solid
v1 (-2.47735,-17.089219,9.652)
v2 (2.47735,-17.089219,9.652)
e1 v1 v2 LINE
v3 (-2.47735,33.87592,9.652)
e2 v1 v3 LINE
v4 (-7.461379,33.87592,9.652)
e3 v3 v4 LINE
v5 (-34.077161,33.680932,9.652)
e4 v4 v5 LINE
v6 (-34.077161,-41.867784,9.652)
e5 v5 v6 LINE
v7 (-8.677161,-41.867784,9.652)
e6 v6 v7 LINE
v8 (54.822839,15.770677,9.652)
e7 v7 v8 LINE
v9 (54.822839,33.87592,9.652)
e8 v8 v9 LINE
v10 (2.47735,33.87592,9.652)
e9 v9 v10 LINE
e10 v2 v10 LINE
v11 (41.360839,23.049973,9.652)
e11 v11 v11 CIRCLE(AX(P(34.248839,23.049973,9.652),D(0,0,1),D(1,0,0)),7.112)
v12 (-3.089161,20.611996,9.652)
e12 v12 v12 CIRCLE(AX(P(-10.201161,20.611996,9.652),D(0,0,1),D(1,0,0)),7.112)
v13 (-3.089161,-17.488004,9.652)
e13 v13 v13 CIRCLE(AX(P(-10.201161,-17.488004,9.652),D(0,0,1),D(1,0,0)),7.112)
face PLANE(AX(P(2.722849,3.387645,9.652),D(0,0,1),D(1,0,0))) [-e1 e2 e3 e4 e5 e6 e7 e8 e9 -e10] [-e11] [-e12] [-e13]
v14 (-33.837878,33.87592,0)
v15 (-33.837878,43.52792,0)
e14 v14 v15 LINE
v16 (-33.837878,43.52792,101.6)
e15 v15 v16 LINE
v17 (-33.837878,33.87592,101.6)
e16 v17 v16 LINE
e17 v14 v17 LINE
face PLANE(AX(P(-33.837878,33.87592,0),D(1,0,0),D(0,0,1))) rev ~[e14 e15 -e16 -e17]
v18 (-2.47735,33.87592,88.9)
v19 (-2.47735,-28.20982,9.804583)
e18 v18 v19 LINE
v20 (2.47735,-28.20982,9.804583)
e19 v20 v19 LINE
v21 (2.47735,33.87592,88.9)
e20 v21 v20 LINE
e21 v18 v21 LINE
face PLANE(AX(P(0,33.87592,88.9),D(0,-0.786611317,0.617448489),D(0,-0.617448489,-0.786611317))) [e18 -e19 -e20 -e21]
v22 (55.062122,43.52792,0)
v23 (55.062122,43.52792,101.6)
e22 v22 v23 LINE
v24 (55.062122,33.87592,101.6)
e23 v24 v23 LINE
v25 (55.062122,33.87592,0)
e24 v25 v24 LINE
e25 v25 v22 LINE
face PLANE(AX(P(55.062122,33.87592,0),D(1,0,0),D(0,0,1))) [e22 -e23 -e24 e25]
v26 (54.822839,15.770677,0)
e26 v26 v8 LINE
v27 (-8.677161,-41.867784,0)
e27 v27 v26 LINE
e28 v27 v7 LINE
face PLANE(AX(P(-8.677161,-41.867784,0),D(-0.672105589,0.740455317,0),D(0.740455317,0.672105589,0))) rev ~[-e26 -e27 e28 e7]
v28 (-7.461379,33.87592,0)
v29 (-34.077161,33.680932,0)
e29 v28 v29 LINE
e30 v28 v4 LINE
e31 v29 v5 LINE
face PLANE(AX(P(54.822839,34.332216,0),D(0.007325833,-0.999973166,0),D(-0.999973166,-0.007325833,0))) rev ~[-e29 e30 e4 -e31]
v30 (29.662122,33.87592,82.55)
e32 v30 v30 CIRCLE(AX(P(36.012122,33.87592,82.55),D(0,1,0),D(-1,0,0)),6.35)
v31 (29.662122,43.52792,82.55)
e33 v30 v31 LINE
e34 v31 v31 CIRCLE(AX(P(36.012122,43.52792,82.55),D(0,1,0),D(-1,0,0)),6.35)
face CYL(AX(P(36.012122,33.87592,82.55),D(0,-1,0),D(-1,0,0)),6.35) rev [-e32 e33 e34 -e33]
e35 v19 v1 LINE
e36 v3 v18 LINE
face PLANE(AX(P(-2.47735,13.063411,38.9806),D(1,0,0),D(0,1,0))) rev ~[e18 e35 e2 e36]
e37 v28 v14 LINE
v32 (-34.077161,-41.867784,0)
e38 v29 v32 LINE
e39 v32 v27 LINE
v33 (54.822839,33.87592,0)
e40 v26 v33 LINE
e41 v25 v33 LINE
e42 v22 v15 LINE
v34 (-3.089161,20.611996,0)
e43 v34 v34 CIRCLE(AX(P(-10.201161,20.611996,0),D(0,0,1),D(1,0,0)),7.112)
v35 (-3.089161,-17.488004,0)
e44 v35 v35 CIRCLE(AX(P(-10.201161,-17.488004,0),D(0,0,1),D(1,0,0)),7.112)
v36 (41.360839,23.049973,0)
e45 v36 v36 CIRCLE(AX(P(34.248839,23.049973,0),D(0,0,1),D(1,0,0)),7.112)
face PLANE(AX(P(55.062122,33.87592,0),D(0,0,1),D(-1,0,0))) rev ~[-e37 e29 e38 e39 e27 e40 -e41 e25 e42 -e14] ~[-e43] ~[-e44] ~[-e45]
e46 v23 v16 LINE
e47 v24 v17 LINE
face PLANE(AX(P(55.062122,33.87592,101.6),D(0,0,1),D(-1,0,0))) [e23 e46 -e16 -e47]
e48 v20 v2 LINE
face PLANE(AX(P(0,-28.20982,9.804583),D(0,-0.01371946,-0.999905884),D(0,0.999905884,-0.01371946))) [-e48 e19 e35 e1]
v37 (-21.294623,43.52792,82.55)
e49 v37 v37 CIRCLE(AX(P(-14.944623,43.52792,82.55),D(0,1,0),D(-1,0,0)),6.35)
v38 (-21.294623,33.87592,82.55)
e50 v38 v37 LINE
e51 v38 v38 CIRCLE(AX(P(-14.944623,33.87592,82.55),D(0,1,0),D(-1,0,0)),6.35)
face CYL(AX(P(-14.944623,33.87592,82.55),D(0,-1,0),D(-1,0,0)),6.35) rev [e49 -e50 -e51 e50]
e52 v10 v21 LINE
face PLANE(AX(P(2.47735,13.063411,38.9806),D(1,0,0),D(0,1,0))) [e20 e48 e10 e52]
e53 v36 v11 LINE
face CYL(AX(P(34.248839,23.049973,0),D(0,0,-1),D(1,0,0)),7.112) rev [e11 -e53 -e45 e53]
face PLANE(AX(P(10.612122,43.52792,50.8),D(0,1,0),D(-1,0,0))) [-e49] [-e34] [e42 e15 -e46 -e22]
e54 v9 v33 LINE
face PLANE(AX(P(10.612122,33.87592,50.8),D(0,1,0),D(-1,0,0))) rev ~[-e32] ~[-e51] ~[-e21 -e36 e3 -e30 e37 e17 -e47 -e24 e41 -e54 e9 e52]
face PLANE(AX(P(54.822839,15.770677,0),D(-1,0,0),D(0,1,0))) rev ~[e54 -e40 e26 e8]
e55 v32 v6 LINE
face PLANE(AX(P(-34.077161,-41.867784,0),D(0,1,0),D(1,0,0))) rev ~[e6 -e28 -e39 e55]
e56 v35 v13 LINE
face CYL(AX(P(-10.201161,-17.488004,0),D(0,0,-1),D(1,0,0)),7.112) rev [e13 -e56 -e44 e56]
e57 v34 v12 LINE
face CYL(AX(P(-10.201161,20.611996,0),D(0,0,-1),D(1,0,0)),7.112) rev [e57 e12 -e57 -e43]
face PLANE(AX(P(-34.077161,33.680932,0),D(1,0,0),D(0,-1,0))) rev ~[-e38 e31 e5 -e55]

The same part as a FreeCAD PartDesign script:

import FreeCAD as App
import Part
import Sketcher
Q = App.Units.Quantity


def add_polygon(sketch, points):
    """Adds a closed chain of lines whose ends are joined by coincident constraints."""
    first, n = sketch.GeometryCount, len(points)
    for a, b in zip(points, points[1:] + points[:1]):
        sketch.addGeometry(Part.LineSegment(App.Vector(*a, 0), App.Vector(*b, 0)), False)
    for i in range(n):
        sketch.addConstraint(Sketcher.Constraint("Coincident", first + i, 2, first + (i + 1) % n, 1))

doc = App.newDocument("Part")
params = doc.addObject("Spreadsheet::Sheet", "Params")
for row, (alias, value) in enumerate([
    ("sketch1_diameter", "0.56 in"),
    ("sketch1_width", "1 in"),
    ("pad1_length", "0.38 in"),
    ("pad2_length", "4.9547 mm"),
    ("sketch3_diameter", "0.5 in"),
    ("sketch3_height", "4 in"),
    ("sketch3_width", "3.5 in"),
    ("pad3_length", "0.38 in"),
], start=1):
    params.set(f"A{row}", alias)
    params.set(f"B{row}", "=" + value)
    params.setAlias(f"B{row}", alias)

body = doc.addObject("PartDesign::Body", "Body")

sketch1 = doc.addObject("Sketcher::SketchObject", "Sketch")
body.addObject(sketch1)
sketch1.AttachmentSupport = (doc.XY_Plane, [""])
sketch1.MapMode = "FlatFace"
add_polygon(sketch1, [(55, 34), (-34, 34), (-34, -42), (-9, -42), (55, 16)])
sketch1.addGeometry(Part.Circle(App.Vector(-10, -17, 0), App.Vector(0, 0, 1), 7), False)
sketch1.addGeometry(Part.Circle(App.Vector(-10, 21, 0), App.Vector(0, 0, 1), 7), False)
sketch1.addGeometry(Part.Circle(App.Vector(34, 23, 0), App.Vector(0, 0, 1), 7), False)
sketch1.addConstraint(Sketcher.Constraint("Vertical", 1))
sketch1.addConstraint(Sketcher.Constraint("Horizontal", 2))
sketch1.addConstraint(Sketcher.Constraint("Vertical", 4))
sketch1.addConstraint(Sketcher.Constraint("Equal", 5, 6))
sketch1.addConstraint(Sketcher.Constraint("Equal", 6, 7))
sketch1.addConstraint(Sketcher.Constraint("Vertical", 5, 3, 6, 3))
sketch1.addConstraint(Sketcher.Constraint("Diameter", 5, Q("0.56 in")))
sketch1.addConstraint(Sketcher.Constraint("DistanceX", 2, 1, 2, 2, Q("1 in")))
sketch1.addConstraint(Sketcher.Constraint("DistanceY", 5, 3, 6, 3, Q("1.5 in")))
sketch1.addConstraint(Sketcher.Constraint("DistanceX", 2, 2, 3, 2, Q("2.5 in")))
sketch1.addConstraint(Sketcher.Constraint("DistanceX", 6, 3, 7, 3, Q("1.75 in")))
sketch1.addConstraint(Sketcher.Constraint("DistanceX", 0, 2, 6, 3, Q("0.94 in")))
sketch1.addConstraint(Sketcher.Constraint("DistanceY", 4, 1, 4, 2, Q("18.561539 mm")))
sketch1.addConstraint(Sketcher.Constraint("DistanceY", 1, 2, 1, 1, Q("75.548716 mm")))
sketch1.addConstraint(Sketcher.Constraint("DistanceX", 5, 3, -1, 1, Q("10.201161 mm")))
sketch1.addConstraint(Sketcher.Constraint("DistanceY", 7, 3, 0, 2, Q("10.630959 mm")))
sketch1.addConstraint(Sketcher.Constraint("DistanceY", 1, 2, 5, 3, Q("24.37978 mm")))
sketch1.addConstraint(Sketcher.Constraint("DistanceY", 3, 2, 6, 3, Q("4.841319 mm")))
sketch1.addConstraint(Sketcher.Constraint("DistanceY", 5, 3, -1, 1, Q("17.488004 mm")))
sketch1.setExpression("Constraints[11]", "Params.sketch1_diameter")
sketch1.setExpression("Constraints[12]", "Params.sketch1_width")
pad1 = doc.addObject("PartDesign::Pad", "Pad")
body.addObject(pad1)
pad1.Profile = sketch1
pad1.setExpression("Length", "Params.pad1_length")

sketch2 = doc.addObject("Sketcher::SketchObject", "Sketch001")
body.addObject(sketch2)
sketch2.AttachmentSupport = (doc.YZ_Plane, [""])
sketch2.MapMode = "FlatFace"
add_polygon(sketch2, [(34, 9), (34, 89), (-28, 10)])
sketch2.addConstraint(Sketcher.Constraint("Vertical", 0))
sketch2.addConstraint(Sketcher.Constraint("DistanceY", -1, 1, 0, 2, Q("3.5 in")))
sketch2.addConstraint(Sketcher.Constraint("DistanceY", 0, 1, 0, 2, Q("79.94728 mm")))
sketch2.addConstraint(Sketcher.Constraint("DistanceX", -1, 1, 0, 2, Q("33.87592 mm")))
sketch2.addConstraint(Sketcher.Constraint("DistanceX", 1, 2, -1, 1, Q("28.20982 mm")))
sketch2.addConstraint(Sketcher.Constraint("Distance", 1, Q("100.552096 mm")))
pad2 = doc.addObject("PartDesign::Pad", "Pad001")
body.addObject(pad2)
pad2.Profile = sketch2
pad2.setExpression("Length", "Params.pad2_length")
pad2.Midplane = True

sketch3 = doc.addObject("Sketcher::SketchObject", "Sketch002")
body.addObject(sketch3)
sketch3.AttachmentSupport = (doc.XZ_Plane, [""])
sketch3.MapMode = "FlatFace"
sketch3.AttachmentOffset = App.Placement(App.Vector(0, 0, -33.87592), App.Rotation())
add_polygon(sketch3, [(55, 102), (55, 0), (-34, 0), (-34, 102)])
sketch3.addGeometry(Part.Circle(App.Vector(36, 83, 0), App.Vector(0, 0, 1), 6), False)
sketch3.addGeometry(Part.Circle(App.Vector(-15, 83, 0), App.Vector(0, 0, 1), 6), False)
sketch3.addConstraint(Sketcher.Constraint("Vertical", 0))
sketch3.addConstraint(Sketcher.Constraint("Horizontal", 1))
sketch3.addConstraint(Sketcher.Constraint("Vertical", 2))
sketch3.addConstraint(Sketcher.Constraint("Horizontal", 3))
sketch3.addConstraint(Sketcher.Constraint("Equal", 4, 5))
sketch3.addConstraint(Sketcher.Constraint("PointOnObject", 0, 2, -1))
sketch3.addConstraint(Sketcher.Constraint("Horizontal", 4, 3, 5, 3))
sketch3.addConstraint(Sketcher.Constraint("Diameter", 4, Q("0.5 in")))
sketch3.addConstraint(Sketcher.Constraint("DistanceY", 0, 2, 0, 1, Q("4 in")))
sketch3.addConstraint(Sketcher.Constraint("DistanceX", 1, 2, 1, 1, Q("3.5 in")))
sketch3.addConstraint(Sketcher.Constraint("DistanceY", -1, 1, 4, 3, Q("3.25 in")))
sketch3.addConstraint(Sketcher.Constraint("DistanceX", 4, 3, 0, 2, Q("0.75 in")))
sketch3.addConstraint(Sketcher.Constraint("DistanceX", -1, 1, 4, 3, Q("1.4178001 in")))
sketch3.addConstraint(Sketcher.Constraint("DistanceX", 5, 3, -1, 1, Q("14.944623 mm")))
sketch3.setExpression("Constraints[11]", "Params.sketch3_diameter")
sketch3.setExpression("Constraints[12]", "Params.sketch3_height")
sketch3.setExpression("Constraints[13]", "Params.sketch3_width")
pad3 = doc.addObject("PartDesign::Pad", "Pad002")
body.addObject(pad3)
pad3.Profile = sketch3
pad3.setExpression("Length", "Params.pad3_length")
pad3.Reversed = True

doc.recompute()
